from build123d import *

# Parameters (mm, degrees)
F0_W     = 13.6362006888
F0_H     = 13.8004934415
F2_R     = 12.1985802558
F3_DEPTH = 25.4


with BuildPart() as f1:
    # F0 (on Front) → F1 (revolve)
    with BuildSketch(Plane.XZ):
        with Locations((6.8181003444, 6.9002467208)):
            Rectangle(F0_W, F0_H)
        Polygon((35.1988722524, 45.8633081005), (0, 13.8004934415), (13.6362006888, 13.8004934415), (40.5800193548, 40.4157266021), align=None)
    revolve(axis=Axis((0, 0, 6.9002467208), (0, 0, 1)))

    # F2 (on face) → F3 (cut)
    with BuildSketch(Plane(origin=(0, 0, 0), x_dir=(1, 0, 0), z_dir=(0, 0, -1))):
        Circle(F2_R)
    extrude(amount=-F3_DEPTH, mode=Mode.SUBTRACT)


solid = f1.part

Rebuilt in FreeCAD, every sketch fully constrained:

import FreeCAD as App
import Part
import Sketcher
Q = App.Units.Quantity


def add_polygon(sketch, points):
    """Adds a closed chain of lines whose ends are joined by coincident constraints."""
    first, n = sketch.GeometryCount, len(points)
    for a, b in zip(points, points[1:] + points[:1]):
        sketch.addGeometry(Part.LineSegment(App.Vector(*a, 0), App.Vector(*b, 0)), False)
    for i in range(n):
        sketch.addConstraint(Sketcher.Constraint("Coincident", first + i, 2, first + (i + 1) % n, 1))

doc = App.newDocument("Part")
body = doc.addObject("PartDesign::Body", "Body")

# Sketch on XZ plane
sketch1 = body.newObject("Sketcher::SketchObject", "Sketch")
sketch1.AttachmentSupport = (doc.getObject("XZ_Plane"), [""])
sketch1.MapMode = "FlatFace"
add_polygon(sketch1, [(0, 14), (0, 0), (14, 0), (14, 14), (41, 40), (35, 46)])  # lines 0-5
sketch1.addConstraint([
    Sketcher.Constraint("Vertical", 0),
    Sketcher.Constraint("Horizontal", 1),
    Sketcher.Constraint("Vertical", 2),
    Sketcher.Constraint("Coincident", 0, 2, -1, 1),
    Sketcher.Constraint("Perpendicular", 3, 4),
    Sketcher.Constraint("Horizontal", 2, 2, 5, 2),
    Sketcher.Constraint("DistanceX", 1, 1, 1, 2, 13.636201),
    Sketcher.Constraint("Distance", 3, 37.872681),
    Sketcher.Constraint("Distance", 4, 7.657212),
    Sketcher.Constraint("DistanceY", 0, 2, 0, 1, 13.800493),
    Sketcher.Constraint("DistanceX", -1, 1, 3, 2, 40.580019),
])
revolution = body.newObject("PartDesign::Revolution", "Revolution")
revolution.Profile = sketch1
revolution.ReferenceAxis = (sketch1, ["V_Axis"])
revolution.Angle = 360

# Sketch on XY plane
sketch2 = body.newObject("Sketcher::SketchObject", "Sketch001")
sketch2.AttachmentSupport = (doc.getObject("XY_Plane"), [""])
sketch2.MapMode = "FlatFace"
sketch2.addGeometry(Part.Circle(App.Vector(0, 0, 0), App.Vector(0, 0, 1), 12), False)
sketch2.addConstraint([
    Sketcher.Constraint("Coincident", 0, 3, -1, 1),
    Sketcher.Constraint("Diameter", 0, 24.397161),
])
pocket1 = body.newObject("PartDesign::Pocket", "Pocket")
pocket1.Profile = sketch2
pocket1.Length = Q("1 in")
pocket1.Reversed = True

doc.recompute()
